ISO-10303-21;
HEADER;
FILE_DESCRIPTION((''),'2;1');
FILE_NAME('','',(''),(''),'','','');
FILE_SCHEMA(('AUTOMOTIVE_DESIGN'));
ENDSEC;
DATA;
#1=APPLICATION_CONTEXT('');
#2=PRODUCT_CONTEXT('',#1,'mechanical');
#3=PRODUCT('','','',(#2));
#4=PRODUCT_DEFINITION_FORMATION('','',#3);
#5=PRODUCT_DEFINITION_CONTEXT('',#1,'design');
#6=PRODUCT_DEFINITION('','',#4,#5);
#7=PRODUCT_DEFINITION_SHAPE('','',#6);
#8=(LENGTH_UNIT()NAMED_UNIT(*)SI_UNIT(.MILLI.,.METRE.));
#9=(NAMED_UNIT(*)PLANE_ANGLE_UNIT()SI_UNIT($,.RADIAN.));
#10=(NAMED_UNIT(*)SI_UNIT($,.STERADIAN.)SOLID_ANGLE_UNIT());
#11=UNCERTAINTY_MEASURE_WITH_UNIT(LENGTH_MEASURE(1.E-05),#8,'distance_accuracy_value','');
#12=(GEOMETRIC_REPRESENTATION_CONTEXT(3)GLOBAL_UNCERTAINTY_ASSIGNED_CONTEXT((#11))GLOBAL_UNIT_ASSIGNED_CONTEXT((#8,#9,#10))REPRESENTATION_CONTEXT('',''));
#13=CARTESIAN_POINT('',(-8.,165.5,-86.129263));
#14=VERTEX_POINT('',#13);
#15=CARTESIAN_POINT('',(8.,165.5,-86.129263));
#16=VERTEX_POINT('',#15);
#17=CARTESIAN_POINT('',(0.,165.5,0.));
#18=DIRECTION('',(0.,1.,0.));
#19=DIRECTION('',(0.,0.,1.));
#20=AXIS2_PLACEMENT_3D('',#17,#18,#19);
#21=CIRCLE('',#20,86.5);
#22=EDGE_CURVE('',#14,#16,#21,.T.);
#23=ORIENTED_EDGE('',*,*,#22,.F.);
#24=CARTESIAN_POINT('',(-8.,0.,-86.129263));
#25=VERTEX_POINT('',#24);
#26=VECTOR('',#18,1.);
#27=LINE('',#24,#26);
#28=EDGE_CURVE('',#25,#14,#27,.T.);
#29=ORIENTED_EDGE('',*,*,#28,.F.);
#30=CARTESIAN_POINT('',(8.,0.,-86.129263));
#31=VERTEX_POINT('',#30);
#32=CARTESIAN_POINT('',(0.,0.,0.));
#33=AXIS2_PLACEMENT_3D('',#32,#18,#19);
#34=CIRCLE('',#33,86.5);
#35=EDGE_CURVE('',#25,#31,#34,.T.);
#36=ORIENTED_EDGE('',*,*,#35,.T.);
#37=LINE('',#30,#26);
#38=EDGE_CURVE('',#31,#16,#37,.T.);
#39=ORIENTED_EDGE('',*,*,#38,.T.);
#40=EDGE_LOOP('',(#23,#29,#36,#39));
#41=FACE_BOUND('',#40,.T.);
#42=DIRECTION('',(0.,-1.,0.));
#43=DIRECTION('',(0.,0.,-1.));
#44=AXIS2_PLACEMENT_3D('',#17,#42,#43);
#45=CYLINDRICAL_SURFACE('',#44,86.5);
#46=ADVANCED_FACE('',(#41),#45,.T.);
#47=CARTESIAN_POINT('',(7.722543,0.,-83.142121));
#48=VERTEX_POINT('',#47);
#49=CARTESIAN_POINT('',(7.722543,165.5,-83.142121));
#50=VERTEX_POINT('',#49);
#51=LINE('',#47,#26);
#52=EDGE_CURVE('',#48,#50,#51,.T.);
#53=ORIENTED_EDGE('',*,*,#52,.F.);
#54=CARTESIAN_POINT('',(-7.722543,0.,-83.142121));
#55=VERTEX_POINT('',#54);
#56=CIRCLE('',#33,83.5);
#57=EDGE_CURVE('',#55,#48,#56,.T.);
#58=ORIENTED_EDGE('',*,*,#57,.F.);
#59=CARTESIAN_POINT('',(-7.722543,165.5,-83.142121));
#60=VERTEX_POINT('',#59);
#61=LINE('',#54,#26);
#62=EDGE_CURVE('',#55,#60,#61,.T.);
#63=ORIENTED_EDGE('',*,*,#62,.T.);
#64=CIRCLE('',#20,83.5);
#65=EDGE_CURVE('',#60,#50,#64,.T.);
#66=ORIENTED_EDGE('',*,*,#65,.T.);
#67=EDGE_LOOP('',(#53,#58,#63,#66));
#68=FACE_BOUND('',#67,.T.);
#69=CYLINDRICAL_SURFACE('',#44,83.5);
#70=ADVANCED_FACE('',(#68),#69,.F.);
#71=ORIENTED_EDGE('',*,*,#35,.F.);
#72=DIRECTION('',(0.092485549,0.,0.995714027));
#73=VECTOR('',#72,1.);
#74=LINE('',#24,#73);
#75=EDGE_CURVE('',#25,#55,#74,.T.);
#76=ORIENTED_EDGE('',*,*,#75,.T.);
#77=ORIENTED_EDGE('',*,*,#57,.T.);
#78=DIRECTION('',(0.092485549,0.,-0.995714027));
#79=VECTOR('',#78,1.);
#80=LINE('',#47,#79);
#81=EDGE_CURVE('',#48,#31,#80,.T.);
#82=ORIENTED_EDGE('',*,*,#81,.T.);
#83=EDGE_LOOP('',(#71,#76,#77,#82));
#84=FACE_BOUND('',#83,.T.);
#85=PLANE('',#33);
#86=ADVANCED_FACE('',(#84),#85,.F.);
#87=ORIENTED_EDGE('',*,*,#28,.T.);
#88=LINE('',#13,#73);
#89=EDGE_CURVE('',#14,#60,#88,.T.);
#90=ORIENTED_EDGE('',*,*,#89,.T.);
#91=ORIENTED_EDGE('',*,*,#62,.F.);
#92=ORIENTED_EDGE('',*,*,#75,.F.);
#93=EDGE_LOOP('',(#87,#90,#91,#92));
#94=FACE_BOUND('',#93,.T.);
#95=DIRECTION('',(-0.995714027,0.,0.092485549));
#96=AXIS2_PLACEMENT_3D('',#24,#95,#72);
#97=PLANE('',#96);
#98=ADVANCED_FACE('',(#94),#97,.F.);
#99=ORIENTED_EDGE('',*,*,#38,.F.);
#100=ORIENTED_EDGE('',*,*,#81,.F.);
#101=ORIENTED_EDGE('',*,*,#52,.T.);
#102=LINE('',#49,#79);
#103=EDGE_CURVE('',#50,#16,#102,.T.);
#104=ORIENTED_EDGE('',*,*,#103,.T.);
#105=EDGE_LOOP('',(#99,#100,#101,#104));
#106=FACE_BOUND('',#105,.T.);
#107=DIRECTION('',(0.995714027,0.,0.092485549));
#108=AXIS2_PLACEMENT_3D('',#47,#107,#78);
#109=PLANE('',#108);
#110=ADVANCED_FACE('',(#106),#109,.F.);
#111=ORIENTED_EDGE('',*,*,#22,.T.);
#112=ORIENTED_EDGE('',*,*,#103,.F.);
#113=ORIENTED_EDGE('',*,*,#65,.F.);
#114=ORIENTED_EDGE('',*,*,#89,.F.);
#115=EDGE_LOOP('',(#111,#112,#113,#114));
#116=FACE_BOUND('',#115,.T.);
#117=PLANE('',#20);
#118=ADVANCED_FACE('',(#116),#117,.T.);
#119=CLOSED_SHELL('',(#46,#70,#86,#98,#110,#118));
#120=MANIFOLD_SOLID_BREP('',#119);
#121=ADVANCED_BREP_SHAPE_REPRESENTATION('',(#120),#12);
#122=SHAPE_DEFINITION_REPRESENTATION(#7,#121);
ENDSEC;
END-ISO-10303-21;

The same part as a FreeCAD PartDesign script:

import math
import FreeCAD as App
import Part
import Sketcher

V = App.Vector
Q = App.Units.Quantity

doc = App.newDocument("Part")
body = doc.addObject("PartDesign::Body", "Body")

# Sketch on XZ plane
sketch1 = doc.addObject("Sketcher::SketchObject", "Sketch")
body.addObject(sketch1)
sketch1.AttachmentSupport = (doc.XZ_Plane, [""])
sketch1.MapMode = "FlatFace"
sketch1.addGeometry(Part.Circle(V(0, 0, 0), V(0, 0, 1), 86), False)
sketch1.addGeometry(Part.Circle(V(0, 0, 0), V(0, 0, 1), 84), False)
sketch1.addConstraint(Sketcher.Constraint("Coincident", 0, 3, -1, 1))
sketch1.addConstraint(Sketcher.Constraint("Coincident", 1, 3, -1, 1))
sketch1.addConstraint(Sketcher.Constraint("Diameter", 0, Q("173 mm")))
sketch1.addConstraint(Sketcher.Constraint("Diameter", 1, Q("167 mm")))
pad1 = doc.addObject("PartDesign::Pad", "Pad")
body.addObject(pad1)
pad1.Profile = sketch1
pad1.Length = 165.5
pad1.Reversed = True

# Sketch on XZ plane
sketch2 = doc.addObject("Sketcher::SketchObject", "Sketch001")
body.addObject(sketch2)
sketch2.AttachmentSupport = (doc.XZ_Plane, [""])
sketch2.MapMode = "FlatFace"
sketch2.AttachmentOffset = App.Placement(V(0, 0, -165.5), App.Rotation())
sketch2.addGeometry(Part.LineSegment(V(-8, -86.1, 0), V(-7.7, -83.1, 0)), False)
sketch2.addGeometry(Part.ArcOfCircle(Part.Circle(V(0, 0, 0), V(0, 0, 1), 83.5), math.radians(-95.31), math.radians(-84.69)), False)
sketch2.addGeometry(Part.LineSegment(V(7.7, -83.1, 0), V(8, -86.1, 0)), False)
sketch2.addGeometry(Part.ArcOfCircle(Part.Circle(V(0, 0, 0), V(0, 0, 1), 86.5), math.radians(-95.31), math.radians(-84.69)), False)
sketch2.addConstraint(Sketcher.Constraint("Coincident", 0, 2, 1, 1))
sketch2.addConstraint(Sketcher.Constraint("Coincident", 1, 2, 2, 1))
sketch2.addConstraint(Sketcher.Constraint("Coincident", 2, 2, 3, 2))
sketch2.addConstraint(Sketcher.Constraint("Coincident", 3, 1, 0, 1))
sketch2.addConstraint(Sketcher.Constraint("Coincident", 1, 3, -1, 1))
sketch2.addConstraint(Sketcher.Constraint("Coincident", 3, 3, -1, 1))
sketch2.addConstraint(Sketcher.Constraint("Horizontal", 0, 2, 1, 2))
sketch2.addConstraint(Sketcher.Constraint("Horizontal", 2, 2, 3, 1))
sketch2.addConstraint(Sketcher.Constraint("Radius", 1, Q("83.5 mm")))
sketch2.addConstraint(Sketcher.Constraint("Radius", 3, Q("86.5 mm")))
sketch2.addConstraint(Sketcher.Constraint("DistanceX", -1, 1, 2, 2, Q("8 mm")))
sketch2.addConstraint(Sketcher.Constraint("DistanceY", 0, 2, -1, 1, Q("83.142121 mm")))
pocket1 = doc.addObject("PartDesign::Pocket", "Pocket")
body.addObject(pocket1)
pocket1.Profile = sketch2
pocket1.Type = "ThroughAll"
pocket1.Midplane = True

doc.recompute()
